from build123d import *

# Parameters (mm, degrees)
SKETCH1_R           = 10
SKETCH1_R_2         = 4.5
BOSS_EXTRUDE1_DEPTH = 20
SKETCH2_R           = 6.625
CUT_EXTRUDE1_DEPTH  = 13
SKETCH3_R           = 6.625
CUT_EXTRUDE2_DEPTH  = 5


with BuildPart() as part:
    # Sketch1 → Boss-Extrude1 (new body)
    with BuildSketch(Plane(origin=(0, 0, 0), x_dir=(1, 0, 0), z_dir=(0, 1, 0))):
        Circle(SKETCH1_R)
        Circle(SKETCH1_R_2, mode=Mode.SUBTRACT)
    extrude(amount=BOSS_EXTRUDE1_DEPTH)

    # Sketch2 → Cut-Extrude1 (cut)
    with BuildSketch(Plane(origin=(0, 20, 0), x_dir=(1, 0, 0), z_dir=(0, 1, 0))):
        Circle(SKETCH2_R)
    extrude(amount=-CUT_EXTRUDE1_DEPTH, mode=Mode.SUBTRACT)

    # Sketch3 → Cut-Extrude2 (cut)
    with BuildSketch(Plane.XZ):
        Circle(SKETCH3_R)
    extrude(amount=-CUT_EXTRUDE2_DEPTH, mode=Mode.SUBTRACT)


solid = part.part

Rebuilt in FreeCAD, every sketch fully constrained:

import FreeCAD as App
import Part
import Sketcher

V = App.Vector
Q = App.Units.Quantity

doc = App.newDocument("Part")
body = doc.addObject("PartDesign::Body", "Body")

# Sketch on XZ plane
sketch1 = body.newObject("Sketcher::SketchObject", "Sketch")
sketch1.AttachmentSupport = (doc.getObject("XZ_Plane"), [""])
sketch1.MapMode = "FlatFace"
sketch1.addGeometry([
    Part.Circle(V(0, 0, 0), V(0, 0, 1), 10),
    Part.Circle(V(0, 0, 0), V(0, 0, 1), 4.5),
], False)
sketch1.addConstraint([
    Sketcher.Constraint("Coincident", 0, 3, -1, 1),
    Sketcher.Constraint("Coincident", 1, 3, -1, 1),
    Sketcher.Constraint("Diameter", 0, Q("20 mm")),
    Sketcher.Constraint("Diameter", 1, Q("9 mm")),
])
pad1 = body.newObject("PartDesign::Pad", "Pad")
pad1.Profile = sketch1
pad1.Length = 20
pad1.Reversed = True

# Sketch on XZ plane
sketch2 = body.newObject("Sketcher::SketchObject", "Sketch001")
sketch2.AttachmentSupport = (doc.getObject("XZ_Plane"), [""])
sketch2.MapMode = "FlatFace"
sketch2.AttachmentOffset = App.Placement(V(0, 0, -20), App.Rotation())
sketch2.addGeometry(Part.Circle(V(0, 0, 0), V(0, 0, 1), 7), False)
sketch2.addConstraint([
    Sketcher.Constraint("Coincident", 0, 3, -1, 1),
    Sketcher.Constraint("Diameter", 0, Q("13.25 mm")),
])
pocket1 = body.newObject("PartDesign::Pocket", "Pocket")
pocket1.Profile = sketch2
pocket1.Length = 13
pocket1.Reversed = True

# Sketch on XZ plane
sketch3 = body.newObject("Sketcher::SketchObject", "Sketch002")
sketch3.AttachmentSupport = (doc.getObject("XZ_Plane"), [""])
sketch3.MapMode = "FlatFace"
sketch3.addGeometry(Part.Circle(V(0, 0, 0), V(0, 0, 1), 7), False)
sketch3.addConstraint([
    Sketcher.Constraint("Coincident", 0, 3, -1, 1),
    Sketcher.Constraint("Diameter", 0, Q("13.25 mm")),
])
pocket2 = body.newObject("PartDesign::Pocket", "Pocket001")
pocket2.Profile = sketch3
pocket2.Length = 5

doc.recompute()
